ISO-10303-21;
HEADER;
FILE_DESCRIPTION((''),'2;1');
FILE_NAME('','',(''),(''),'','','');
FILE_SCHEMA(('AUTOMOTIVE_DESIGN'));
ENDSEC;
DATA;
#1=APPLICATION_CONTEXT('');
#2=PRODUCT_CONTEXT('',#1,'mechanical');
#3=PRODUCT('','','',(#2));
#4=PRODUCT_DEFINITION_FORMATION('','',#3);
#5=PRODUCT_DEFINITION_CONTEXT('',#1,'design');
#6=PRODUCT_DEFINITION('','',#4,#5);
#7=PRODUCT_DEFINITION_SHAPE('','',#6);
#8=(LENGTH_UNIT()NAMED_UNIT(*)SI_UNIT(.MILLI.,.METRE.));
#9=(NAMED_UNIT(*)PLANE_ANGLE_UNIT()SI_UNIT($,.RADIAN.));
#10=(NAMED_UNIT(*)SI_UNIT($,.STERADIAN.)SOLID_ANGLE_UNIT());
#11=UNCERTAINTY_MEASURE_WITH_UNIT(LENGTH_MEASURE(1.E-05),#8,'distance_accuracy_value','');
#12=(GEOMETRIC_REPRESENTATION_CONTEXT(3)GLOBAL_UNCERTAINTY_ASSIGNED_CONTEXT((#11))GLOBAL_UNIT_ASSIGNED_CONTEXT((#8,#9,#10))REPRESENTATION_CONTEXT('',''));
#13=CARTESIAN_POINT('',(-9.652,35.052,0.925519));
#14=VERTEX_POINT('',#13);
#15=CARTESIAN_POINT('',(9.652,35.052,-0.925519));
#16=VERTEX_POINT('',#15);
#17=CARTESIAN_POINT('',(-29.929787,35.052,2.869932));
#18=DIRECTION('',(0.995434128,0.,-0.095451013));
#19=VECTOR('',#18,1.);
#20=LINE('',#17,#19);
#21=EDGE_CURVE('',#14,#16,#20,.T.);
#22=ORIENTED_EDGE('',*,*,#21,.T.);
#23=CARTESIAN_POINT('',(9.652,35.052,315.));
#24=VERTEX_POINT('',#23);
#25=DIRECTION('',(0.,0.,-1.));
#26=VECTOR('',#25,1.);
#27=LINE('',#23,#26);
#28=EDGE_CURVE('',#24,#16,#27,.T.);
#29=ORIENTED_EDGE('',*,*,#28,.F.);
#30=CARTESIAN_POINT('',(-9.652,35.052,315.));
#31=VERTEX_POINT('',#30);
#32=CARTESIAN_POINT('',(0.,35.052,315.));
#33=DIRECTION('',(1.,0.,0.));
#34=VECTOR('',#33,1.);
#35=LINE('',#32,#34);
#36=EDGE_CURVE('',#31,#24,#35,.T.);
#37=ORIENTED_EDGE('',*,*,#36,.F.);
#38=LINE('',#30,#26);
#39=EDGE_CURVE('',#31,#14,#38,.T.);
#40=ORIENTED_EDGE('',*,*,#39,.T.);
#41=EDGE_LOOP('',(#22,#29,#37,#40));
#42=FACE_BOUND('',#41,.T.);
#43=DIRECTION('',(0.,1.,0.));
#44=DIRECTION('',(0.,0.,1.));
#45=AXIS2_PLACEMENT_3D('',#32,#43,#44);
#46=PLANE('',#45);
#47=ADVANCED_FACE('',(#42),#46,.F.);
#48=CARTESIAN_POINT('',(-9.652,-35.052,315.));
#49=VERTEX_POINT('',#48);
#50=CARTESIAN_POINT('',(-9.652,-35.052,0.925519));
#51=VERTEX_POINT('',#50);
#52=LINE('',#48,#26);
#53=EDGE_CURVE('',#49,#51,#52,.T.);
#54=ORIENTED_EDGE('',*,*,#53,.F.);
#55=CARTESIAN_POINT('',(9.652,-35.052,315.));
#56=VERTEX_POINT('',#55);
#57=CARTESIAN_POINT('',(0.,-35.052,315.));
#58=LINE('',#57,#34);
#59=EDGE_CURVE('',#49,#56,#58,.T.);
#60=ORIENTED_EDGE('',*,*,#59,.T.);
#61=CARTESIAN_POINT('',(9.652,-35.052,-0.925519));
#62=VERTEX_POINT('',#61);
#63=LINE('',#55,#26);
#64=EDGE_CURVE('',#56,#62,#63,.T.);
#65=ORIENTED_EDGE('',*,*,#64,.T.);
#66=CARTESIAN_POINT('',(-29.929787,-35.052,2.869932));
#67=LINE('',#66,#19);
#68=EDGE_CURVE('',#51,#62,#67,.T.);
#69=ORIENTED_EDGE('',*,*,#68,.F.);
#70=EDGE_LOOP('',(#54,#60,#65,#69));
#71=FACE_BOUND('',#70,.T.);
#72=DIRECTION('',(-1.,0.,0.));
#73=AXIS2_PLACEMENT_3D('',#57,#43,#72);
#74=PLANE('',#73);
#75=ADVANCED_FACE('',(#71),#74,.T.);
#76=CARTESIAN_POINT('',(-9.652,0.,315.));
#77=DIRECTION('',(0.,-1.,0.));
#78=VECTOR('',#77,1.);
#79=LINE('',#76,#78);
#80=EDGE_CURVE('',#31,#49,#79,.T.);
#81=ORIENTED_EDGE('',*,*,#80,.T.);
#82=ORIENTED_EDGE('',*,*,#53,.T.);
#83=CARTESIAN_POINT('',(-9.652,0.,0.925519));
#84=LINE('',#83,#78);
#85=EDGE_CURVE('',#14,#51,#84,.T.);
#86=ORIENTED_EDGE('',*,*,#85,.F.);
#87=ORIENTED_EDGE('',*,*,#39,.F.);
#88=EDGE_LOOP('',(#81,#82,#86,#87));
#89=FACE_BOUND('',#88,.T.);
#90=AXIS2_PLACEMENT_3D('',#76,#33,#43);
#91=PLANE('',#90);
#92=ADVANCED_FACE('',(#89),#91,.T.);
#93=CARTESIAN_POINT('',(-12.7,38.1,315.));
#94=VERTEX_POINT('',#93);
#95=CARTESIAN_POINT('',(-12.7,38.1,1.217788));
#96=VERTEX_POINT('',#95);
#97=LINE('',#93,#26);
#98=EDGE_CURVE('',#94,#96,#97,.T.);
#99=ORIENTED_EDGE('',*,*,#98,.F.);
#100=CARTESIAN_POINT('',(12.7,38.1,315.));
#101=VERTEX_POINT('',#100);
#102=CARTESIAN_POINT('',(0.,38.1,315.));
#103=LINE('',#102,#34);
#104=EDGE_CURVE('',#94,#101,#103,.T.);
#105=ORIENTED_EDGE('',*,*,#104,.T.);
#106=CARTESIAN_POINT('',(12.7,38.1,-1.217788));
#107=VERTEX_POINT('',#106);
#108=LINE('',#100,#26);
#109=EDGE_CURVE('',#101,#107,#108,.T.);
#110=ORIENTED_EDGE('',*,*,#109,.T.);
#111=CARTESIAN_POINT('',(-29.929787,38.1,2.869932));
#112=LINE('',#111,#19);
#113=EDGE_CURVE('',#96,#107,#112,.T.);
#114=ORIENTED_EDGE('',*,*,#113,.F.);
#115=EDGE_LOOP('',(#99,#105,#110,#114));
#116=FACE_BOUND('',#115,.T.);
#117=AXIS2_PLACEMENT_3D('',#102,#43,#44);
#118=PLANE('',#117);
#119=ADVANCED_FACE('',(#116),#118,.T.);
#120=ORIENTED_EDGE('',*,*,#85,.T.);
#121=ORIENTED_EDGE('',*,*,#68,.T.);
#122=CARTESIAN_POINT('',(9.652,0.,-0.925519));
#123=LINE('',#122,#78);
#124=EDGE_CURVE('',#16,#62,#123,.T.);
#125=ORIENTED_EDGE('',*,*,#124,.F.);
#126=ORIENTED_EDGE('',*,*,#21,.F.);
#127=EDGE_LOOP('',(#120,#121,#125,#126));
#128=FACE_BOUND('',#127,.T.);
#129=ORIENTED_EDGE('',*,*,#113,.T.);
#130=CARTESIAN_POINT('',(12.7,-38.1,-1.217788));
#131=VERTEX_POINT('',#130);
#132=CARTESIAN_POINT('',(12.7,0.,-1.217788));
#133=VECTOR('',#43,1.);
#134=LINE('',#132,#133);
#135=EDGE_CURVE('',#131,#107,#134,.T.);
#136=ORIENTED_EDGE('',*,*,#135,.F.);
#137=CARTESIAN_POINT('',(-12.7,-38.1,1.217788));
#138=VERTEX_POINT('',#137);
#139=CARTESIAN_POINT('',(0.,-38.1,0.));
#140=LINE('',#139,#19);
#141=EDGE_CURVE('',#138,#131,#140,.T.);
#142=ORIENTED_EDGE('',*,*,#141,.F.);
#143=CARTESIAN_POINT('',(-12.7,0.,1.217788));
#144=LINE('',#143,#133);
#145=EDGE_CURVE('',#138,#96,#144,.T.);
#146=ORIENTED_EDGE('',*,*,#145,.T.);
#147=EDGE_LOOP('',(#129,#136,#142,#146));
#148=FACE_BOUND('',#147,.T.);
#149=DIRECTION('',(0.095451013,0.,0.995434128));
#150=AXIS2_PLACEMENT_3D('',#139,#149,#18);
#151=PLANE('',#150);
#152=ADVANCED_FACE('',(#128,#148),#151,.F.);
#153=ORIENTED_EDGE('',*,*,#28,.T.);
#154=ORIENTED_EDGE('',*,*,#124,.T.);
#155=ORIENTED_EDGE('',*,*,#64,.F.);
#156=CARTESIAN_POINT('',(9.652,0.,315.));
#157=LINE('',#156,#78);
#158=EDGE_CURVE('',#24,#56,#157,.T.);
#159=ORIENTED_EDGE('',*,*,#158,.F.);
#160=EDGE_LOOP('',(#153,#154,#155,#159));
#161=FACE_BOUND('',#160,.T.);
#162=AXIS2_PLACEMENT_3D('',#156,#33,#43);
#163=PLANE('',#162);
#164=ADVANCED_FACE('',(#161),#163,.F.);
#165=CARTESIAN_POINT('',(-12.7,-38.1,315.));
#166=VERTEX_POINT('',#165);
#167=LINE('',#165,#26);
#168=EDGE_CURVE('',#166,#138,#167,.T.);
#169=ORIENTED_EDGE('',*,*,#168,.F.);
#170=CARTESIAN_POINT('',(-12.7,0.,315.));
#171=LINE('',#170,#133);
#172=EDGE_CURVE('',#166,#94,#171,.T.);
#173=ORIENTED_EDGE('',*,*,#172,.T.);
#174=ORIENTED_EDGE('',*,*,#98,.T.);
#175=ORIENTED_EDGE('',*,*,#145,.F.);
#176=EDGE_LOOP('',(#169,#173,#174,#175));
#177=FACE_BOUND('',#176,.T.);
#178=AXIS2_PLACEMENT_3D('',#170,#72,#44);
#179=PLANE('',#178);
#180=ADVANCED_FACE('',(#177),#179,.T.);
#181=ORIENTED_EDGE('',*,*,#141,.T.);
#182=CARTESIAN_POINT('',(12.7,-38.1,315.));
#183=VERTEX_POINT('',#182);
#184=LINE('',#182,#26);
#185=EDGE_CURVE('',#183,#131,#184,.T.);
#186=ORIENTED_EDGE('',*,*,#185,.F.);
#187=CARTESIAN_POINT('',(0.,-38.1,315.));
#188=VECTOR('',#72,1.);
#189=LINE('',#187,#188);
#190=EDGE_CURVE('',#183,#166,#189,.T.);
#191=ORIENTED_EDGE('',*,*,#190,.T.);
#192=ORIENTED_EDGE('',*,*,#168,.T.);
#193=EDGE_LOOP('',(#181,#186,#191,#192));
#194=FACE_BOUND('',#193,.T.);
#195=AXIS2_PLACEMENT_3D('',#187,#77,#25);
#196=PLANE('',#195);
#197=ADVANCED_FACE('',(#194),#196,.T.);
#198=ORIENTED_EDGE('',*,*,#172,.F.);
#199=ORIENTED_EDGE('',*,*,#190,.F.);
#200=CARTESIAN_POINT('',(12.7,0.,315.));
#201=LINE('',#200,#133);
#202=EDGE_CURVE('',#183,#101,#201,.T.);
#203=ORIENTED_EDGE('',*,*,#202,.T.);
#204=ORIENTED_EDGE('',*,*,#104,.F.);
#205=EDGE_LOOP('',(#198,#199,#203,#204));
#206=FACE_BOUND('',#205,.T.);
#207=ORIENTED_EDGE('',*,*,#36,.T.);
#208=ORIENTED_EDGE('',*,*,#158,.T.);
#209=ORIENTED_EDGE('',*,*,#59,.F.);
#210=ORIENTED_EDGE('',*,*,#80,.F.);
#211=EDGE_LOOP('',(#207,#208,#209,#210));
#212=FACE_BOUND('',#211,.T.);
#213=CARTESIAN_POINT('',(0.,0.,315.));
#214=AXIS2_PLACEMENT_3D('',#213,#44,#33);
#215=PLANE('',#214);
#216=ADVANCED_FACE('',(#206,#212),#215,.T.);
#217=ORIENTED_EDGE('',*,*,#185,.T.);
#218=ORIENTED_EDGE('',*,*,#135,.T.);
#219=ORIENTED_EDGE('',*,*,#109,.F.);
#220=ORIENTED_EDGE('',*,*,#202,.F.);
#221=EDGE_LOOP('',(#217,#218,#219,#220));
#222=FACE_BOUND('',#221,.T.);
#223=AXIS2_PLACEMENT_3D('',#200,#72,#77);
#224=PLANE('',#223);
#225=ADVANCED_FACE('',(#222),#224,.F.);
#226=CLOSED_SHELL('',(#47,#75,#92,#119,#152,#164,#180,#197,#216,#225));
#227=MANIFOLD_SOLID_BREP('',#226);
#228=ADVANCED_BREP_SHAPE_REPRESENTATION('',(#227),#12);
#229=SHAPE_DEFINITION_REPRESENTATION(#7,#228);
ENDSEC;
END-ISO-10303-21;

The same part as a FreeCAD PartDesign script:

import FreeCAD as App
import Part
import Sketcher
Q = App.Units.Quantity

doc = App.newDocument("Part")
body = doc.addObject("PartDesign::Body", "Body")

sketch1 = body.newObject("Sketcher::SketchObject", "Sketch")
sketch1.AttachmentSupport = (doc.getObject("XY_Plane"), [""])
sketch1.MapMode = "FlatFace"
sketch1.addGeometry(Part.LineSegment(App.Vector(12.7, 38.1, 0), App.Vector(-12.7, 38.1, 0)), False)
sketch1.addGeometry(Part.LineSegment(App.Vector(-12.7, 38.1, 0), App.Vector(-12.7, -38.1, 0)), False)
sketch1.addGeometry(Part.LineSegment(App.Vector(-12.7, -38.1, 0), App.Vector(12.7, -38.1, 0)), False)
sketch1.addGeometry(Part.LineSegment(App.Vector(12.7, -38.1, 0), App.Vector(12.7, 38.1, 0)), False)
sketch1.addGeometry(Part.LineSegment(App.Vector(-9.652, 35.052, 0), App.Vector(9.652, 35.052, 0)), False)
sketch1.addGeometry(Part.LineSegment(App.Vector(9.652, 35.052, 0), App.Vector(9.652, -35.052, 0)), False)
sketch1.addGeometry(Part.LineSegment(App.Vector(9.652, -35.052, 0), App.Vector(-9.652, -35.052, 0)), False)
sketch1.addGeometry(Part.LineSegment(App.Vector(-9.652, -35.052, 0), App.Vector(-9.652, 35.052, 0)), False)
sketch1.addConstraint(Sketcher.Constraint("Coincident", 0, 2, 1, 1))
sketch1.addConstraint(Sketcher.Constraint("Coincident", 1, 2, 2, 1))
sketch1.addConstraint(Sketcher.Constraint("Coincident", 2, 2, 3, 1))
sketch1.addConstraint(Sketcher.Constraint("Coincident", 3, 2, 0, 1))
sketch1.addConstraint(Sketcher.Constraint("Coincident", 4, 2, 5, 1))
sketch1.addConstraint(Sketcher.Constraint("Coincident", 5, 2, 6, 1))
sketch1.addConstraint(Sketcher.Constraint("Coincident", 6, 2, 7, 1))
sketch1.addConstraint(Sketcher.Constraint("Coincident", 7, 2, 4, 1))
sketch1.addConstraint(Sketcher.Constraint("Horizontal", 0))
sketch1.addConstraint(Sketcher.Constraint("Vertical", 1))
sketch1.addConstraint(Sketcher.Constraint("Horizontal", 2))
sketch1.addConstraint(Sketcher.Constraint("Vertical", 3))
sketch1.addConstraint(Sketcher.Constraint("Horizontal", 4))
sketch1.addConstraint(Sketcher.Constraint("Vertical", 5))
sketch1.addConstraint(Sketcher.Constraint("Horizontal", 6))
sketch1.addConstraint(Sketcher.Constraint("Vertical", 7))
sketch1.addConstraint(Sketcher.Constraint("Symmetric", 0, 2, 2, 2, -1, 1))
sketch1.addConstraint(Sketcher.Constraint("Symmetric", 4, 2, 6, 2, -1, 1))
sketch1.addConstraint(Sketcher.Constraint("DistanceX", 0, 2, 0, 1, Q("1 in")))
sketch1.addConstraint(Sketcher.Constraint("DistanceY", 1, 2, 1, 1, Q("3 in")))
sketch1.addConstraint(Sketcher.Constraint("DistanceX", 4, 1, 4, 2, Q("0.76 in")))
sketch1.addConstraint(Sketcher.Constraint("DistanceY", 5, 2, 5, 1, Q("2.76 in")))
pad1 = body.newObject("PartDesign::Pad", "Pad")
pad1.Profile = sketch1
pad1.Length = 315

sketch2 = body.newObject("Sketcher::SketchObject", "Sketch001")
sketch2.AttachmentSupport = (doc.getObject("XY_Plane"), [""])
sketch2.MapMode = "FlatFace"
sketch2.addGeometry(Part.LineSegment(App.Vector(12.7, 38.1, 0), App.Vector(12.7, -38.1, 0)), False)
sketch2.addGeometry(Part.LineSegment(App.Vector(12.7, -38.1, 0), App.Vector(-12.7, -38.1, 0)), False)
sketch2.addGeometry(Part.LineSegment(App.Vector(-12.7, -38.1, 0), App.Vector(-12.7, 38.1, 0)), False)
sketch2.addGeometry(Part.LineSegment(App.Vector(-12.7, 38.1, 0), App.Vector(12.7, 38.1, 0)), False)
sketch2.addGeometry(Part.LineSegment(App.Vector(-9.652, -35.052, 0), App.Vector(9.652, -35.052, 0)), False)
sketch2.addGeometry(Part.LineSegment(App.Vector(9.652, -35.052, 0), App.Vector(9.652, 35.052, 0)), False)
sketch2.addGeometry(Part.LineSegment(App.Vector(9.652, 35.052, 0), App.Vector(-9.652, 35.052, 0)), False)
sketch2.addGeometry(Part.LineSegment(App.Vector(-9.652, 35.052, 0), App.Vector(-9.652, -35.052, 0)), False)
sketch2.addConstraint(Sketcher.Constraint("Coincident", 0, 2, 1, 1))
sketch2.addConstraint(Sketcher.Constraint("Coincident", 1, 2, 2, 1))
sketch2.addConstraint(Sketcher.Constraint("Coincident", 2, 2, 3, 1))
sketch2.addConstraint(Sketcher.Constraint("Coincident", 3, 2, 0, 1))
sketch2.addConstraint(Sketcher.Constraint("Coincident", 4, 2, 5, 1))
sketch2.addConstraint(Sketcher.Constraint("Coincident", 5, 2, 6, 1))
sketch2.addConstraint(Sketcher.Constraint("Coincident", 6, 2, 7, 1))
sketch2.addConstraint(Sketcher.Constraint("Coincident", 7, 2, 4, 1))
sketch2.addConstraint(Sketcher.Constraint("Vertical", 0))
sketch2.addConstraint(Sketcher.Constraint("Horizontal", 1))
sketch2.addConstraint(Sketcher.Constraint("Vertical", 2))
sketch2.addConstraint(Sketcher.Constraint("Horizontal", 3))
sketch2.addConstraint(Sketcher.Constraint("Horizontal", 4))
sketch2.addConstraint(Sketcher.Constraint("Vertical", 5))
sketch2.addConstraint(Sketcher.Constraint("Horizontal", 6))
sketch2.addConstraint(Sketcher.Constraint("Vertical", 7))
sketch2.addConstraint(Sketcher.Constraint("Symmetric", 0, 2, 2, 2, -1, 1))
sketch2.addConstraint(Sketcher.Constraint("Symmetric", 4, 2, 6, 2, -1, 1))
sketch2.addConstraint(Sketcher.Constraint("DistanceX", 1, 2, 1, 1, Q("1 in")))
sketch2.addConstraint(Sketcher.Constraint("DistanceY", 0, 2, 0, 1, Q("3 in")))
sketch2.addConstraint(Sketcher.Constraint("DistanceX", 4, 1, 4, 2, Q("0.76 in")))
sketch2.addConstraint(Sketcher.Constraint("DistanceY", 5, 1, 5, 2, Q("2.76 in")))
pad2 = body.newObject("PartDesign::Pad", "Pad001")
pad2.Profile = sketch2
pad2.Length = 50
pad2.Reversed = True

sketch3 = body.newObject("Sketcher::SketchObject", "Sketch002")
sketch3.AttachmentSupport = (doc.getObject("XZ_Plane"), [""])
sketch3.MapMode = "FlatFace"
sketch3.AttachmentOffset = App.Placement(App.Vector(0, 0, -1.5 * 25.4), App.Rotation())
sketch3.addGeometry(Part.LineSegment(App.Vector(-70.949793, 6.803293, 0), App.Vector(-12.7, 1.217788, 0)), False)
sketch3.addGeometry(Part.LineSegment(App.Vector(-12.7, 1.217788, 0), App.Vector(12.7, -1.217788, 0)), False)
sketch3.addGeometry(Part.LineSegment(App.Vector(12.7, -1.217788, 0), App.Vector(70.949793, -6.803293, 0)), False)
sketch3.addGeometry(Part.LineSegment(App.Vector(70.949793, -6.803293, 0), App.Vector(64.339408, -75.741308, 0)), False)
sketch3.addGeometry(Part.LineSegment(App.Vector(64.339408, -75.741308, 0), App.Vector(-77.560179, -62.134722, 0)), False)
sketch3.addGeometry(Part.LineSegment(App.Vector(-77.560179, -62.134722, 0), App.Vector(-70.949793, 6.803293, 0)), False)
sketch3.addConstraint(Sketcher.Constraint("Coincident", 0, 2, 1, 1))
sketch3.addConstraint(Sketcher.Constraint("Coincident", 1, 2, 2, 1))
sketch3.addConstraint(Sketcher.Constraint("Coincident", 2, 2, 3, 1))
sketch3.addConstraint(Sketcher.Constraint("Coincident", 3, 2, 4, 1))
sketch3.addConstraint(Sketcher.Constraint("Coincident", 4, 2, 5, 1))
sketch3.addConstraint(Sketcher.Constraint("Coincident", 5, 2, 0, 1))
sketch3.addConstraint(Sketcher.Constraint("Symmetric", 0, 2, 1, 2, -1, 1))
sketch3.addConstraint(Sketcher.Constraint("Symmetric", 2, 2, 5, 2, -1, 1))
sketch3.addConstraint(Sketcher.Constraint("Parallel", 0, 1))
sketch3.addConstraint(Sketcher.Constraint("Perpendicular", 2, 3))
sketch3.addConstraint(Sketcher.Constraint("Perpendicular", 3, 4))
sketch3.addConstraint(Sketcher.Constraint("Perpendicular", 4, 5))
sketch3.addConstraint(Sketcher.Constraint("DistanceX", 0, 2, 1, 2, Q("1 in")))
sketch3.addConstraint(Sketcher.Constraint("DistanceX", 5, 2, 3, 2, Q("135.289201 mm")))
sketch3.addConstraint(Sketcher.Constraint("DistanceY", 3, 2, 5, 2, Q("82.5446 mm")))
sketch3.addConstraint(Sketcher.Constraint("Distance", 3, Q("69.254221 mm")))
pocket1 = body.newObject("PartDesign::Pocket", "Pocket")
pocket1.Profile = sketch3
pocket1.Type = "ThroughAll"
pocket1.Midplane = True

doc.recompute()
